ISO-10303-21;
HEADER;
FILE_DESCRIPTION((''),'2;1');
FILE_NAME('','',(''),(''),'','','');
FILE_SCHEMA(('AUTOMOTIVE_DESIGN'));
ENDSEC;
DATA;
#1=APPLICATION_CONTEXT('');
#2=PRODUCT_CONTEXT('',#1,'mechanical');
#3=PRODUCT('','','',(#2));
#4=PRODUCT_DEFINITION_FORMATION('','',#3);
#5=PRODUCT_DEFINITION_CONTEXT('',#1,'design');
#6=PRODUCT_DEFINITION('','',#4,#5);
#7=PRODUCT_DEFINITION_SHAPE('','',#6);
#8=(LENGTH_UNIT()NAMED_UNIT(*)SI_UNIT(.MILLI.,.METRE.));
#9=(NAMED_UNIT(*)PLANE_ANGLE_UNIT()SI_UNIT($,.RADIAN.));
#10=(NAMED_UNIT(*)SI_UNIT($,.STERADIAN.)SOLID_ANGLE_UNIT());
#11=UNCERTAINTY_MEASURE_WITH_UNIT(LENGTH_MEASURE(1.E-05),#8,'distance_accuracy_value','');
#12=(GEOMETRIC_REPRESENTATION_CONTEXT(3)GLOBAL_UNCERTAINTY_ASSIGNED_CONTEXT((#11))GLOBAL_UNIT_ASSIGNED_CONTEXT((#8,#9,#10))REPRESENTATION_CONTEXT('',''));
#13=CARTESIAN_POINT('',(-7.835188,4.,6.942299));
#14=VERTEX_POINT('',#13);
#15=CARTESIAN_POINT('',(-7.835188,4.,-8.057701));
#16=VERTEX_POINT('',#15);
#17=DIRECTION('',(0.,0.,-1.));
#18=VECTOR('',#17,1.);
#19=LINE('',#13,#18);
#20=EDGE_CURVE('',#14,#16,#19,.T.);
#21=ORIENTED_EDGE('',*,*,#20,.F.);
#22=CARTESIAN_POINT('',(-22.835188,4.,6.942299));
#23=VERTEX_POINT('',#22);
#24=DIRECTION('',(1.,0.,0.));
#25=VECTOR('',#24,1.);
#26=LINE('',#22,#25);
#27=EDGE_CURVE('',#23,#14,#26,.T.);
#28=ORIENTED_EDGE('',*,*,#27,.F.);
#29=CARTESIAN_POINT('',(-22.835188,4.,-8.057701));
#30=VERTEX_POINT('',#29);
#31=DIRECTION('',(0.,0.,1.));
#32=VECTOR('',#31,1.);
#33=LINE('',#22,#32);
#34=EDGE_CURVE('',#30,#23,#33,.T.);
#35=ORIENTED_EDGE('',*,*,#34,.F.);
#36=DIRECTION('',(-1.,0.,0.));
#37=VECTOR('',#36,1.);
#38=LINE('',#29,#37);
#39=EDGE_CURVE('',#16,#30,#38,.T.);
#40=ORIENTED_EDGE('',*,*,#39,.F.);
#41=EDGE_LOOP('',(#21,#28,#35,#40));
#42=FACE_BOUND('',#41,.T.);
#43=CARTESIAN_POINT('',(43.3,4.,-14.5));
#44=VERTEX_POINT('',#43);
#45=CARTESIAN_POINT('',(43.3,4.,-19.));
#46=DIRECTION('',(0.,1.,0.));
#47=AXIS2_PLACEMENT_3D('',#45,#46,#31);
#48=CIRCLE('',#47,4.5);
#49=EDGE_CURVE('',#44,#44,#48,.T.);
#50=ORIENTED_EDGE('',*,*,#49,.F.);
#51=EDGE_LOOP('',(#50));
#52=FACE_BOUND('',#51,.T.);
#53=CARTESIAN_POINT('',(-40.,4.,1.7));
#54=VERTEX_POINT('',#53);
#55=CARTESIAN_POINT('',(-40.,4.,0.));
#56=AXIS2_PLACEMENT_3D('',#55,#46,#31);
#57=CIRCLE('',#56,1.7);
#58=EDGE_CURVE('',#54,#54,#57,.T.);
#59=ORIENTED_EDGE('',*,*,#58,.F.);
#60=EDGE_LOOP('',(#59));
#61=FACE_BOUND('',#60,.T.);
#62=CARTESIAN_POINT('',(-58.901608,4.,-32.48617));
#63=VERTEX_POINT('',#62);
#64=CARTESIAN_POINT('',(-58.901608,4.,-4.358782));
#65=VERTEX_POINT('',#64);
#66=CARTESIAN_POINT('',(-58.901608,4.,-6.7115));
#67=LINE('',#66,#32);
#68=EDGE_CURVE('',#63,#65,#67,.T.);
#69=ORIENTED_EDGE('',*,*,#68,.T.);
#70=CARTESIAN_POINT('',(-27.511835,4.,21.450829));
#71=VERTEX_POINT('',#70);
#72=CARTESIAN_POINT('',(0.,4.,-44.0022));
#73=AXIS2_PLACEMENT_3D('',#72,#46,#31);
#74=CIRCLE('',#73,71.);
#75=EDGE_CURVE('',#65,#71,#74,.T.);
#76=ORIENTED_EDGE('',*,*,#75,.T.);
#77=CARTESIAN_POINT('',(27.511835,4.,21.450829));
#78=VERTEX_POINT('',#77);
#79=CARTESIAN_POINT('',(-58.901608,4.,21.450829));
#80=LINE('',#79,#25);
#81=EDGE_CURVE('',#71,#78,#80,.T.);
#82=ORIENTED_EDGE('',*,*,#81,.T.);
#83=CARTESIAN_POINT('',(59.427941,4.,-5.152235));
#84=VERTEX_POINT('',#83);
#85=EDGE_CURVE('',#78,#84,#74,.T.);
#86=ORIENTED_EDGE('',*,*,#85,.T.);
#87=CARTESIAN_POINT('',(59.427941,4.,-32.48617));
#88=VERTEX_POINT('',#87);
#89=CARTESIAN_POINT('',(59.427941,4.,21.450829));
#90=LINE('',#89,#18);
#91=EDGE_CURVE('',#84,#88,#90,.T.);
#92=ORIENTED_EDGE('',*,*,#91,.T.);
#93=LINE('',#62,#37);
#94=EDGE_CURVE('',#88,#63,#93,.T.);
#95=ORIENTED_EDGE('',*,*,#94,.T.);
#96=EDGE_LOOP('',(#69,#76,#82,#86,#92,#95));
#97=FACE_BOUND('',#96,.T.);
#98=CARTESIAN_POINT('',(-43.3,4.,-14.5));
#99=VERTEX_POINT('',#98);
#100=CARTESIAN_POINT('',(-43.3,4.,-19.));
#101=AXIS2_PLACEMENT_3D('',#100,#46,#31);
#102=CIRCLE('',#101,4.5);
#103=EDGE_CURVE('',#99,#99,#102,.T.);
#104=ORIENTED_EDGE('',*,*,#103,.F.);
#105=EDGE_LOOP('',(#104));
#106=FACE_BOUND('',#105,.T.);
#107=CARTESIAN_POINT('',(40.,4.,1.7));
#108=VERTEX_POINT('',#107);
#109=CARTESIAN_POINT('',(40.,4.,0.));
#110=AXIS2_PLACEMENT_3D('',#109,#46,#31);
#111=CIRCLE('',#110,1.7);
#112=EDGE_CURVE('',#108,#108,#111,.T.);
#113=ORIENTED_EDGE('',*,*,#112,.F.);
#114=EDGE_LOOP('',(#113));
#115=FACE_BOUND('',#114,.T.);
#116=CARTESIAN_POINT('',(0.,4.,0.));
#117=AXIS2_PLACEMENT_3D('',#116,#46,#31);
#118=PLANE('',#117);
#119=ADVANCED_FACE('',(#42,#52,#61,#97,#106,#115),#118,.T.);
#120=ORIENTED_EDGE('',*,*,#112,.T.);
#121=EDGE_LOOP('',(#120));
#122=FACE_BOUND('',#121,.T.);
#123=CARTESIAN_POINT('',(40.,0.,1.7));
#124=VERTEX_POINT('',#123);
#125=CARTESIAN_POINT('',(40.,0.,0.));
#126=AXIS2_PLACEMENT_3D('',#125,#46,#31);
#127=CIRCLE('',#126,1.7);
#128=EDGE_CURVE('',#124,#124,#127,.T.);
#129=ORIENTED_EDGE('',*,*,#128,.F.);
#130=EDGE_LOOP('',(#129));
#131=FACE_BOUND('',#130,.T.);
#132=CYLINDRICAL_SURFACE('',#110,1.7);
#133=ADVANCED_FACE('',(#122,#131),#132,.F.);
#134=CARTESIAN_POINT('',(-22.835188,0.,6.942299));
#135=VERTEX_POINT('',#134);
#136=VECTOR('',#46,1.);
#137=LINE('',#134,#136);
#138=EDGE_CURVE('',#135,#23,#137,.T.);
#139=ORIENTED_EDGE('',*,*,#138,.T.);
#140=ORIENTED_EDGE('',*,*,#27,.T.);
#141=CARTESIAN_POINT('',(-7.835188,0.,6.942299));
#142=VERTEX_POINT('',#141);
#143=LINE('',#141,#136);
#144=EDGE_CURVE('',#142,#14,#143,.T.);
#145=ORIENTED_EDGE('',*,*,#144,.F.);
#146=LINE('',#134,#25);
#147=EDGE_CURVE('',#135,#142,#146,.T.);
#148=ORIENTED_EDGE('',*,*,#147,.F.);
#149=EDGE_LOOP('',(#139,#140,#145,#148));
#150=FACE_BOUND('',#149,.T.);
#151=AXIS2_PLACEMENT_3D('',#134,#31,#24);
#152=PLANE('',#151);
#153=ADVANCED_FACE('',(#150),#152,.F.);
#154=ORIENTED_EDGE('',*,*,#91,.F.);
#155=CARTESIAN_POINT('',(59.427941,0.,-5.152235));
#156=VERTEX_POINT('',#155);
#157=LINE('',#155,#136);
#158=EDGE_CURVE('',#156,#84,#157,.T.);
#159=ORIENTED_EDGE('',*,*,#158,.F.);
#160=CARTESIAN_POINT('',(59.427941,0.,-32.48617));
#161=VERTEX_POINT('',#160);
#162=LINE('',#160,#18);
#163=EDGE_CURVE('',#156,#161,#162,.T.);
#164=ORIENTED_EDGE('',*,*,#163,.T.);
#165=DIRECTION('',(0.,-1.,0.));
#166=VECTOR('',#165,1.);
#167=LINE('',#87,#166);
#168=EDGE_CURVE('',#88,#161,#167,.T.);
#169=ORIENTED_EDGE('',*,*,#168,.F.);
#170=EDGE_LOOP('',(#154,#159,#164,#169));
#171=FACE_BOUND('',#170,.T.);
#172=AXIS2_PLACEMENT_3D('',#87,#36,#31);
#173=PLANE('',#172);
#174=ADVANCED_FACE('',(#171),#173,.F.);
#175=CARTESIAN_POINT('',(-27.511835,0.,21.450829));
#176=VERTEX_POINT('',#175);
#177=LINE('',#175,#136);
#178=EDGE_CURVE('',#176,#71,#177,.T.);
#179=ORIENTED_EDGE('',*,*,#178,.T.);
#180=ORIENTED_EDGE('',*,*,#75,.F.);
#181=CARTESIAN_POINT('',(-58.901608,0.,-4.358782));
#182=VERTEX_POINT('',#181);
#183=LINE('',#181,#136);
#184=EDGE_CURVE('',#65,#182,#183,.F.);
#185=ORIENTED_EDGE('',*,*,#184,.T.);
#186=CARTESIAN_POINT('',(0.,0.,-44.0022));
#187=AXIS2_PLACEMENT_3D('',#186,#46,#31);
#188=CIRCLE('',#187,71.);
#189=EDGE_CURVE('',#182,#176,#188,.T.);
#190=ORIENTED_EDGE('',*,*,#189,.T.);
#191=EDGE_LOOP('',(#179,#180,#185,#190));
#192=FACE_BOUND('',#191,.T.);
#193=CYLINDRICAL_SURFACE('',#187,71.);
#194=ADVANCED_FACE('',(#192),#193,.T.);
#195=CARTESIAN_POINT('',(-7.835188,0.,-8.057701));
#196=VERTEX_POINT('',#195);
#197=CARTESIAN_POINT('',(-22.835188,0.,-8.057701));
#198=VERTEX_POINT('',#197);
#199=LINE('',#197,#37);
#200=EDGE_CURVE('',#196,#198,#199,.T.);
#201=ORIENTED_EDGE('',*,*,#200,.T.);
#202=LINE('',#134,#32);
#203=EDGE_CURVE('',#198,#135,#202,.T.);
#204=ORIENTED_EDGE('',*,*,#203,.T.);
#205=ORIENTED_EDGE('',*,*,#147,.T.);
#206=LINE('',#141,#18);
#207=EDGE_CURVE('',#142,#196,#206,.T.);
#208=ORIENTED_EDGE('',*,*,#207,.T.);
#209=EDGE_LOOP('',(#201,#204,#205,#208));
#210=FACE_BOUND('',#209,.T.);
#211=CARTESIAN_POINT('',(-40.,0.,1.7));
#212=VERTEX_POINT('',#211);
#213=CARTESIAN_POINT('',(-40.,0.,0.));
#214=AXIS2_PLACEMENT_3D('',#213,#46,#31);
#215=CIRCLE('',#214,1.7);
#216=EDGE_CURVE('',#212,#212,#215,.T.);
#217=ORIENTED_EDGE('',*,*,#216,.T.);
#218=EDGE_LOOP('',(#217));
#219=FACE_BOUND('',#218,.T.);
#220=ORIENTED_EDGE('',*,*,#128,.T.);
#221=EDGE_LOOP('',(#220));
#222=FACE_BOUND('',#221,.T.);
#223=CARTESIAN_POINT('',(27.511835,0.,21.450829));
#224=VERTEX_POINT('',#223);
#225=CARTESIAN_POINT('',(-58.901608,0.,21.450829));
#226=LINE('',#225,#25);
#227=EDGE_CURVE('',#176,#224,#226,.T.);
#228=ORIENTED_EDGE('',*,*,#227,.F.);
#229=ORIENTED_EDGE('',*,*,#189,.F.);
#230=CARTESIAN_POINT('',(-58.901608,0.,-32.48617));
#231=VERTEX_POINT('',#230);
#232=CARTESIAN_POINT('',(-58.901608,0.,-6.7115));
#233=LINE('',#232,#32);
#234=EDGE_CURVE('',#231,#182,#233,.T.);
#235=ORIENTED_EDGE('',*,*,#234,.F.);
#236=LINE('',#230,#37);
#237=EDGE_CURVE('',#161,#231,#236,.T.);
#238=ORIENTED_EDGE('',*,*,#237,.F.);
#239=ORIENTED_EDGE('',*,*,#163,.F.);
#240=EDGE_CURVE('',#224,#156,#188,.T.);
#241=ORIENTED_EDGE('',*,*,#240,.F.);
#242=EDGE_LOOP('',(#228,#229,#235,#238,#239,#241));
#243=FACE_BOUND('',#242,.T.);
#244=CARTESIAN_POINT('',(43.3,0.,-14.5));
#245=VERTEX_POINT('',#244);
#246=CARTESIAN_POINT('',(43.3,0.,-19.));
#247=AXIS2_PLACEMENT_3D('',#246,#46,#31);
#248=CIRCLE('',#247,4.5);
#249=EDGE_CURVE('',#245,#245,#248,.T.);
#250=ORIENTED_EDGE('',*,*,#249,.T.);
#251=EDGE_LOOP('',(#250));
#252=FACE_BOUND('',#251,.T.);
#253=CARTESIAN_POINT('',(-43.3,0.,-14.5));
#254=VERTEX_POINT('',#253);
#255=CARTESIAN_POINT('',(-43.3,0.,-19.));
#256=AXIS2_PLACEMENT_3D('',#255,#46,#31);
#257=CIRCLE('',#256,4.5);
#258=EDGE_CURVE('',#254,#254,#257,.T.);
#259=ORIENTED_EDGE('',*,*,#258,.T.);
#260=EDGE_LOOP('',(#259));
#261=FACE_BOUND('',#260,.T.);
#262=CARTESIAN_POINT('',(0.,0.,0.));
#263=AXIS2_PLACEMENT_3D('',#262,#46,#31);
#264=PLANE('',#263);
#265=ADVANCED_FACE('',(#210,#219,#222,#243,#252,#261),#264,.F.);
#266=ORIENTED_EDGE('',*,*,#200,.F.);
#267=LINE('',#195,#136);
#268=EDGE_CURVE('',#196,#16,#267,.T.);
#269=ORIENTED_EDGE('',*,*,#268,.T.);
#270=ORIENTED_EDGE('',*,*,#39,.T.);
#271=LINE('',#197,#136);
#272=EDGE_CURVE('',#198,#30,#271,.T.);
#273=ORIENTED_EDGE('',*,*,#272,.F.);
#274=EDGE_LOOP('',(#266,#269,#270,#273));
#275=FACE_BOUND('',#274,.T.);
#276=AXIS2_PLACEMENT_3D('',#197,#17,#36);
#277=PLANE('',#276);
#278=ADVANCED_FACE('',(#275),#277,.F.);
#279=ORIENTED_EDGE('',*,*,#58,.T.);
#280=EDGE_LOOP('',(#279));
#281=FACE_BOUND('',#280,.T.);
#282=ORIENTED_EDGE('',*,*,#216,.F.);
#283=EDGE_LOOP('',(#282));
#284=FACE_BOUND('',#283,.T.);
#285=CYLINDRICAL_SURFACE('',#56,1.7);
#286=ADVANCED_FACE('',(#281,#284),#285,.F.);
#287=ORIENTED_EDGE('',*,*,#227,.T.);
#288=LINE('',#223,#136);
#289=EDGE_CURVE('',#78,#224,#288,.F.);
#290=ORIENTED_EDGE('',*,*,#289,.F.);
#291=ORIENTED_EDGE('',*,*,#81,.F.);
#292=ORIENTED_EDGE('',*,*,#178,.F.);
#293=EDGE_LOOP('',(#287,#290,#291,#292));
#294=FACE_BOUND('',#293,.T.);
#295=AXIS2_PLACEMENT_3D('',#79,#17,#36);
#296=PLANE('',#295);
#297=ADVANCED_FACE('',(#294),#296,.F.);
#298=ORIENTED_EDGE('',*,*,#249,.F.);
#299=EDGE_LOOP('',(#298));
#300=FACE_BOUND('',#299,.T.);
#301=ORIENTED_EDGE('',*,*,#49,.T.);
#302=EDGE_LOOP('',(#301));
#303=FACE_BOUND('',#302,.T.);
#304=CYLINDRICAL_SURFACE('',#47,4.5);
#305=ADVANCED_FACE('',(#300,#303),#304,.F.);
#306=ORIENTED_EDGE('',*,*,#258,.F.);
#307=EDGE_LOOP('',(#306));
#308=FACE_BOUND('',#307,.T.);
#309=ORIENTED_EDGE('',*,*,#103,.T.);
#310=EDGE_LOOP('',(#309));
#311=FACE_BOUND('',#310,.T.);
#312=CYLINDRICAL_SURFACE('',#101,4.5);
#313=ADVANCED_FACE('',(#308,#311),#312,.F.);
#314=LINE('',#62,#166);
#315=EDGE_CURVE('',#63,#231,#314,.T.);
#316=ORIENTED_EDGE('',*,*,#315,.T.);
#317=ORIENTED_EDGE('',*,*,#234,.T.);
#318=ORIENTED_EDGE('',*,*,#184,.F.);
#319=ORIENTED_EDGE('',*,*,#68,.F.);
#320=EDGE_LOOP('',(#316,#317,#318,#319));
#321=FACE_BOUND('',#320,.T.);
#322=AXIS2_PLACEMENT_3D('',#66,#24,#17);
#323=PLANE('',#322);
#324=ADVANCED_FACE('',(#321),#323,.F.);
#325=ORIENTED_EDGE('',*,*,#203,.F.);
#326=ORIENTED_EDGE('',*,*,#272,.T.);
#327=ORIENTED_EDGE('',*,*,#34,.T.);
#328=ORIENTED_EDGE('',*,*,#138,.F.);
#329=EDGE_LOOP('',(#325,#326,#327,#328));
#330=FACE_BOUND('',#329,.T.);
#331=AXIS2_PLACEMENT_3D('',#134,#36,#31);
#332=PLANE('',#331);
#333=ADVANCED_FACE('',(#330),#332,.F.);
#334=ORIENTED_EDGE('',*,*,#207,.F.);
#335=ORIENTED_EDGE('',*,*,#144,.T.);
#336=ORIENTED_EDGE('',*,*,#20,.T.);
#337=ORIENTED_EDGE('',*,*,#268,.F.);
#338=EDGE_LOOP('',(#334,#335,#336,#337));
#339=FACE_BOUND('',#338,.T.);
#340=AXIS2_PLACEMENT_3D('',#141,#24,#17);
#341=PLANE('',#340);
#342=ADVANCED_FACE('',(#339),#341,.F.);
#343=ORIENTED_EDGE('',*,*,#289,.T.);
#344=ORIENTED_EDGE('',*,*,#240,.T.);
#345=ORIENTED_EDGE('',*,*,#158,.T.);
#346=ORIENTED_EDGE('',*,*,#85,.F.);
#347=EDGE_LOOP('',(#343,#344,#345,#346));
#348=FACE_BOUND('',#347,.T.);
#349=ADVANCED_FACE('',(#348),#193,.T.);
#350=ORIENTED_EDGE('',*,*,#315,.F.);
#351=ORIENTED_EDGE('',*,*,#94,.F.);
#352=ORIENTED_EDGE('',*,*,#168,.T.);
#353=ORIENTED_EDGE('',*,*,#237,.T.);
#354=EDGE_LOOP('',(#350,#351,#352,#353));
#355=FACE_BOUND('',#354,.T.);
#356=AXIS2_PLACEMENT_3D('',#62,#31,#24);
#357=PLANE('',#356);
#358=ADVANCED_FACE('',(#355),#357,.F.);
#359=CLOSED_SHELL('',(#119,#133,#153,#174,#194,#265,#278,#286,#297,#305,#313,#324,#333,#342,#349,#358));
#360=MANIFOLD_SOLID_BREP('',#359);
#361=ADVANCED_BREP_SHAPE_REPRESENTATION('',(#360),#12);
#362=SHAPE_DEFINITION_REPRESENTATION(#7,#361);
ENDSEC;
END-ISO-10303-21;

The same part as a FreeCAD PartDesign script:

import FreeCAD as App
import Part
import Sketcher
from FreeCAD import Vector

doc = App.newDocument("Part")
body = doc.addObject("PartDesign::Body", "Body")

# Sketch on XZ plane
sketch1 = doc.addObject("Sketcher::SketchObject", "Sketch")
body.addObject(sketch1)
sketch1.AttachmentSupport = (doc.XZ_Plane, [""])
sketch1.MapMode = "FlatFace"
sketch1.addGeometry([
    Part.LineSegment(Vector(-59, -32, 0), Vector(-59, 21, 0)),  # 0
    Part.LineSegment(Vector(-59, 21, 0), Vector(59, 21, 0)),  # 1
    Part.LineSegment(Vector(59, 21, 0), Vector(59, -32, 0)),  # 2
    Part.LineSegment(Vector(59, -32, 0), Vector(-59, -32, 0)),  # 3
    Part.LineSegment(Vector(-32, 12, 0), Vector(-32, -12, 0)),  # 4
    Part.LineSegment(Vector(-32, -12, 0), Vector(32, -12, 0)),  # 5
    Part.LineSegment(Vector(32, -12, 0), Vector(32, 12, 0)),  # 6
    Part.LineSegment(Vector(32, 12, 0), Vector(-32, 12, 0)),  # 7
], False)
sketch1.addConstraint([
    Sketcher.Constraint("Coincident", 0, 2, 1, 1),
    Sketcher.Constraint("Coincident", 1, 2, 2, 1),
    Sketcher.Constraint("Coincident", 2, 2, 3, 1),
    Sketcher.Constraint("Coincident", 3, 2, 0, 1),
    Sketcher.Constraint("Coincident", 4, 2, 5, 1),
    Sketcher.Constraint("Coincident", 5, 2, 6, 1),
    Sketcher.Constraint("Coincident", 6, 2, 7, 1),
    Sketcher.Constraint("Coincident", 7, 2, 4, 1),
    Sketcher.Constraint("Vertical", 0),
    Sketcher.Constraint("Horizontal", 1),
    Sketcher.Constraint("Vertical", 2),
    Sketcher.Constraint("Horizontal", 3),
    Sketcher.Constraint("Vertical", 4),
    Sketcher.Constraint("Horizontal", 5),
    Sketcher.Constraint("Vertical", 6),
    Sketcher.Constraint("Horizontal", 7),
    Sketcher.Constraint("Symmetric", 4, 2, 6, 2, -1, 1),
    Sketcher.Constraint("DistanceX", 5, 1, 5, 2, 63.0),
    Sketcher.Constraint("DistanceY", 4, 2, 4, 1, 25.0),
    Sketcher.Constraint("DistanceY", 0, 1, 0, 2, 53.936999),
    Sketcher.Constraint("DistanceX", 1, 1, 1, 2, 118.329549),
    Sketcher.Constraint("DistanceY", -1, 1, 0, 2, 21.450829),
    Sketcher.Constraint("DistanceX", -1, 1, 1, 2, 59.427941),
])
pad1 = doc.addObject("PartDesign::Pad", "Pad")
body.addObject(pad1)
pad1.Profile = sketch1
pad1.Length = 4
pad1.Reversed = True

# Sketch on XZ plane
sketch2 = doc.addObject("Sketcher::SketchObject", "Sketch001")
body.addObject(sketch2)
sketch2.AttachmentSupport = (doc.XZ_Plane, [""])
sketch2.MapMode = "FlatFace"
sketch2.AttachmentOffset = App.Placement(Vector(0, 0, -4), App.Rotation())
sketch2.addGeometry([
    Part.Circle(Vector(-43.3, -19, 0), Vector(0, 0, 1), 4.5),
    Part.Circle(Vector(43.3, -19, 0), Vector(0, 0, 1), 4.5),
], False)
sketch2.addConstraint([
    Sketcher.Constraint("Equal", 0, 1),
    Sketcher.Constraint("Symmetric", 0, 3, 1, 3, -2),
    Sketcher.Constraint("Diameter", 0, 9.0),
    Sketcher.Constraint("DistanceY", 0, 3, -1, 1, 19.0),
    Sketcher.Constraint("DistanceX", 0, 3, -1, 1, 43.3),
])
doc.recompute()
hole = doc.addObject("PartDesign::Hole", "Hole")
body.addObject(hole)
hole.Profile = sketch2
hole.ThreadType = "None"
hole.Diameter = 9
hole.DepthType = "ThroughAll"
hole.Reversed = True

# Sketch on XZ plane
sketch3 = doc.addObject("Sketcher::SketchObject", "Sketch002")
body.addObject(sketch3)
sketch3.AttachmentSupport = (doc.XZ_Plane, [""])
sketch3.MapMode = "FlatFace"
sketch3.AttachmentOffset = App.Placement(Vector(0, 0, -4), App.Rotation())
sketch3.addGeometry([
    Part.Circle(Vector(0, -44, 0), Vector(0, 0, 1), 96),
    Part.Circle(Vector(0, -44, 0), Vector(0, 0, 1), 71),
], False)
sketch3.addConstraint([
    Sketcher.Constraint("Coincident", 1, 3, 0, 3),
    Sketcher.Constraint("PointOnObject", 0, 3, -2),
    Sketcher.Constraint("Diameter", 0, 192.0),
    Sketcher.Constraint("Diameter", 1, 142.0),
    Sketcher.Constraint("DistanceY", 0, 3, -1, 1, 44.0022),
])
pocket1 = doc.addObject("PartDesign::Pocket", "Pocket")
body.addObject(pocket1)
pocket1.Profile = sketch3
pocket1.Type = "ThroughAll"
pocket1.Reversed = True

# Sketch on XZ plane
sketch4 = doc.addObject("Sketcher::SketchObject", "Sketch003")
body.addObject(sketch4)
sketch4.AttachmentSupport = (doc.XZ_Plane, [""])
sketch4.MapMode = "FlatFace"
sketch4.AttachmentOffset = App.Placement(Vector(0, 0, -4), App.Rotation())
sketch4.addGeometry([
    Part.LineSegment(Vector(-32, -12, 0), Vector(-32, 12, 0)),
    Part.LineSegment(Vector(-32, 12, 0), Vector(32, 12, 0)),
    Part.LineSegment(Vector(32, 12, 0), Vector(32, -12, 0)),
    Part.LineSegment(Vector(32, -12, 0), Vector(-32, -12, 0)),
], False)
sketch4.addConstraint([
    Sketcher.Constraint("Coincident", 0, 2, 1, 1),
    Sketcher.Constraint("Coincident", 1, 2, 2, 1),
    Sketcher.Constraint("Coincident", 2, 2, 3, 1),
    Sketcher.Constraint("Coincident", 3, 2, 0, 1),
    Sketcher.Constraint("Vertical", 0),
    Sketcher.Constraint("Horizontal", 1),
    Sketcher.Constraint("Vertical", 2),
    Sketcher.Constraint("Horizontal", 3),
    Sketcher.Constraint("Symmetric", 0, 2, 2, 2, -1, 1),
    Sketcher.Constraint("DistanceX", 1, 1, 1, 2, 63.0),
    Sketcher.Constraint("DistanceY", 0, 1, 0, 2, 25.0),
])
pad2 = doc.addObject("PartDesign::Pad", "Pad001")
body.addObject(pad2)
pad2.Profile = sketch4
pad2.Length = 4

# Sketch on XZ plane
sketch5 = doc.addObject("Sketcher::SketchObject", "Sketch004")
body.addObject(sketch5)
sketch5.AttachmentSupport = (doc.XZ_Plane, [""])
sketch5.MapMode = "FlatFace"
sketch5.AttachmentOffset = App.Placement(Vector(0, 0, -4), App.Rotation())
sketch5.addGeometry([
    Part.LineSegment(Vector(-23, -8, 0), Vector(-23, 7, 0)),
    Part.LineSegment(Vector(-23, 7, 0), Vector(-8, 7, 0)),
    Part.LineSegment(Vector(-8, 7, 0), Vector(-8, -8, 0)),
    Part.LineSegment(Vector(-8, -8, 0), Vector(-23, -8, 0)),
], False)
sketch5.addConstraint([
    Sketcher.Constraint("Coincident", 0, 2, 1, 1),
    Sketcher.Constraint("Coincident", 1, 2, 2, 1),
    Sketcher.Constraint("Coincident", 2, 2, 3, 1),
    Sketcher.Constraint("Coincident", 3, 2, 0, 1),
    Sketcher.Constraint("Vertical", 0),
    Sketcher.Constraint("Horizontal", 1),
    Sketcher.Constraint("Vertical", 2),
    Sketcher.Constraint("Horizontal", 3),
    Sketcher.Constraint("Equal", 3, 0),
    Sketcher.Constraint("DistanceX", 1, 1, 1, 2, 15.0),
    Sketcher.Constraint("DistanceY", -1, 1, 0, 2, 6.942299),
    Sketcher.Constraint("DistanceX", 0, 2, -1, 1, 22.835188),
])
pocket2 = doc.addObject("PartDesign::Pocket", "Pocket001")
body.addObject(pocket2)
pocket2.Profile = sketch5
pocket2.Type = "ThroughAll"
pocket2.Reversed = True

# Sketch on XZ plane
sketch6 = doc.addObject("Sketcher::SketchObject", "Sketch005")
body.addObject(sketch6)
sketch6.AttachmentSupport = (doc.XZ_Plane, [""])
sketch6.MapMode = "FlatFace"
sketch6.AttachmentOffset = App.Placement(Vector(0, 0, -4), App.Rotation())
sketch6.addGeometry([
    Part.Circle(Vector(-40, 0, 0), Vector(0, 0, 1), 1.7),
    Part.Circle(Vector(40, 0, 0), Vector(0, 0, 1), 1.7),
], False)
sketch6.addConstraint([
    Sketcher.Constraint("Equal", 0, 1),
    Sketcher.Constraint("Symmetric", 0, 3, 1, 3, -1, 1),
    Sketcher.Constraint("PointOnObject", 0, 3, -1),
    Sketcher.Constraint("Diameter", 0, 3.4),
    Sketcher.Constraint("DistanceX", 0, 3, -1, 1, 40.0),
])
doc.recompute()
hole2 = doc.addObject("PartDesign::Hole", "Hole001")
body.addObject(hole2)
hole2.Profile = sketch6
hole2.ThreadType = "None"
hole2.Diameter = 3.4
hole2.DepthType = "ThroughAll"
hole2.Reversed = True

doc.recompute()
